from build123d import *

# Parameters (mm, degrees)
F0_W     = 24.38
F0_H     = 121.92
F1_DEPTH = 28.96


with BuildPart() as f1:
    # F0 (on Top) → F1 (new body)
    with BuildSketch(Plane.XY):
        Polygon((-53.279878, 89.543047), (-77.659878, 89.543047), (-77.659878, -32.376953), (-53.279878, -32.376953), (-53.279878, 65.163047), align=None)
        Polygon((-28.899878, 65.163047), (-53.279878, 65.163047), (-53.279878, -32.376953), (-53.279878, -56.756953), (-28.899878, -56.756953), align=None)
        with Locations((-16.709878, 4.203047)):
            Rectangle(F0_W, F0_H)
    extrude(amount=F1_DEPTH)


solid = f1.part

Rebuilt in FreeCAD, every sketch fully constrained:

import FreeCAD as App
import Part
import Sketcher
from FreeCAD import Vector
Q = App.Units.Quantity


def add_polygon(sketch, points):
    """Adds a closed chain of lines whose ends are joined by coincident constraints."""
    first, n = sketch.GeometryCount, len(points)
    for a, b in zip(points, points[1:] + points[:1]):
        sketch.addGeometry(Part.LineSegment(App.Vector(*a, 0), App.Vector(*b, 0)), False)
    for i in range(n):
        sketch.addConstraint(Sketcher.Constraint("Coincident", first + i, 2, first + (i + 1) % n, 1))

doc = App.newDocument("Part")
body = doc.addObject("PartDesign::Body", "Body")

sketch1 = body.newObject("Sketcher::SketchObject", "Sketch")
sketch1.AttachmentSupport = (doc.getObject("XY_Plane"), [""])
sketch1.MapMode = "FlatFace"
add_polygon(sketch1, [(-53, 90), (-78, 90), (-78, -32), (-53, -32), (-53, -57), (-5, -57), (-5, 65), (-53, 65)])
sketch1.addConstraint([
    Sketcher.Constraint("Horizontal", 0),
    Sketcher.Constraint("Vertical", 1),
    Sketcher.Constraint("Horizontal", 2),
    Sketcher.Constraint("Vertical", 3),
    Sketcher.Constraint("Horizontal", 4),
    Sketcher.Constraint("Vertical", 5),
    Sketcher.Constraint("Horizontal", 6),
    Sketcher.Constraint("Vertical", 7),
    Sketcher.Constraint("Vertical", 3, 2, 6, 2),
    Sketcher.Constraint("Equal", 2, 3),
    Sketcher.Constraint("Equal", 1, 5),
    Sketcher.Constraint("DistanceY", 1, 2, 1, 1, Q("4.8 in")),
    Sketcher.Constraint("DistanceX", 0, 2, 0, 1, Q("24.38 mm")),
    Sketcher.Constraint("DistanceX", 4, 1, 4, 2, Q("48.76 mm")),
    Sketcher.Constraint("DistanceX", 0, 2, -1, 1, Q("77.659878 mm")),
    Sketcher.Constraint("DistanceY", -1, 1, 0, 2, Q("89.543047 mm")),
])
pad1 = body.newObject("PartDesign::Pad", "Pad")
pad1.Profile = sketch1
pad1.Length = 28.96

doc.recompute()
